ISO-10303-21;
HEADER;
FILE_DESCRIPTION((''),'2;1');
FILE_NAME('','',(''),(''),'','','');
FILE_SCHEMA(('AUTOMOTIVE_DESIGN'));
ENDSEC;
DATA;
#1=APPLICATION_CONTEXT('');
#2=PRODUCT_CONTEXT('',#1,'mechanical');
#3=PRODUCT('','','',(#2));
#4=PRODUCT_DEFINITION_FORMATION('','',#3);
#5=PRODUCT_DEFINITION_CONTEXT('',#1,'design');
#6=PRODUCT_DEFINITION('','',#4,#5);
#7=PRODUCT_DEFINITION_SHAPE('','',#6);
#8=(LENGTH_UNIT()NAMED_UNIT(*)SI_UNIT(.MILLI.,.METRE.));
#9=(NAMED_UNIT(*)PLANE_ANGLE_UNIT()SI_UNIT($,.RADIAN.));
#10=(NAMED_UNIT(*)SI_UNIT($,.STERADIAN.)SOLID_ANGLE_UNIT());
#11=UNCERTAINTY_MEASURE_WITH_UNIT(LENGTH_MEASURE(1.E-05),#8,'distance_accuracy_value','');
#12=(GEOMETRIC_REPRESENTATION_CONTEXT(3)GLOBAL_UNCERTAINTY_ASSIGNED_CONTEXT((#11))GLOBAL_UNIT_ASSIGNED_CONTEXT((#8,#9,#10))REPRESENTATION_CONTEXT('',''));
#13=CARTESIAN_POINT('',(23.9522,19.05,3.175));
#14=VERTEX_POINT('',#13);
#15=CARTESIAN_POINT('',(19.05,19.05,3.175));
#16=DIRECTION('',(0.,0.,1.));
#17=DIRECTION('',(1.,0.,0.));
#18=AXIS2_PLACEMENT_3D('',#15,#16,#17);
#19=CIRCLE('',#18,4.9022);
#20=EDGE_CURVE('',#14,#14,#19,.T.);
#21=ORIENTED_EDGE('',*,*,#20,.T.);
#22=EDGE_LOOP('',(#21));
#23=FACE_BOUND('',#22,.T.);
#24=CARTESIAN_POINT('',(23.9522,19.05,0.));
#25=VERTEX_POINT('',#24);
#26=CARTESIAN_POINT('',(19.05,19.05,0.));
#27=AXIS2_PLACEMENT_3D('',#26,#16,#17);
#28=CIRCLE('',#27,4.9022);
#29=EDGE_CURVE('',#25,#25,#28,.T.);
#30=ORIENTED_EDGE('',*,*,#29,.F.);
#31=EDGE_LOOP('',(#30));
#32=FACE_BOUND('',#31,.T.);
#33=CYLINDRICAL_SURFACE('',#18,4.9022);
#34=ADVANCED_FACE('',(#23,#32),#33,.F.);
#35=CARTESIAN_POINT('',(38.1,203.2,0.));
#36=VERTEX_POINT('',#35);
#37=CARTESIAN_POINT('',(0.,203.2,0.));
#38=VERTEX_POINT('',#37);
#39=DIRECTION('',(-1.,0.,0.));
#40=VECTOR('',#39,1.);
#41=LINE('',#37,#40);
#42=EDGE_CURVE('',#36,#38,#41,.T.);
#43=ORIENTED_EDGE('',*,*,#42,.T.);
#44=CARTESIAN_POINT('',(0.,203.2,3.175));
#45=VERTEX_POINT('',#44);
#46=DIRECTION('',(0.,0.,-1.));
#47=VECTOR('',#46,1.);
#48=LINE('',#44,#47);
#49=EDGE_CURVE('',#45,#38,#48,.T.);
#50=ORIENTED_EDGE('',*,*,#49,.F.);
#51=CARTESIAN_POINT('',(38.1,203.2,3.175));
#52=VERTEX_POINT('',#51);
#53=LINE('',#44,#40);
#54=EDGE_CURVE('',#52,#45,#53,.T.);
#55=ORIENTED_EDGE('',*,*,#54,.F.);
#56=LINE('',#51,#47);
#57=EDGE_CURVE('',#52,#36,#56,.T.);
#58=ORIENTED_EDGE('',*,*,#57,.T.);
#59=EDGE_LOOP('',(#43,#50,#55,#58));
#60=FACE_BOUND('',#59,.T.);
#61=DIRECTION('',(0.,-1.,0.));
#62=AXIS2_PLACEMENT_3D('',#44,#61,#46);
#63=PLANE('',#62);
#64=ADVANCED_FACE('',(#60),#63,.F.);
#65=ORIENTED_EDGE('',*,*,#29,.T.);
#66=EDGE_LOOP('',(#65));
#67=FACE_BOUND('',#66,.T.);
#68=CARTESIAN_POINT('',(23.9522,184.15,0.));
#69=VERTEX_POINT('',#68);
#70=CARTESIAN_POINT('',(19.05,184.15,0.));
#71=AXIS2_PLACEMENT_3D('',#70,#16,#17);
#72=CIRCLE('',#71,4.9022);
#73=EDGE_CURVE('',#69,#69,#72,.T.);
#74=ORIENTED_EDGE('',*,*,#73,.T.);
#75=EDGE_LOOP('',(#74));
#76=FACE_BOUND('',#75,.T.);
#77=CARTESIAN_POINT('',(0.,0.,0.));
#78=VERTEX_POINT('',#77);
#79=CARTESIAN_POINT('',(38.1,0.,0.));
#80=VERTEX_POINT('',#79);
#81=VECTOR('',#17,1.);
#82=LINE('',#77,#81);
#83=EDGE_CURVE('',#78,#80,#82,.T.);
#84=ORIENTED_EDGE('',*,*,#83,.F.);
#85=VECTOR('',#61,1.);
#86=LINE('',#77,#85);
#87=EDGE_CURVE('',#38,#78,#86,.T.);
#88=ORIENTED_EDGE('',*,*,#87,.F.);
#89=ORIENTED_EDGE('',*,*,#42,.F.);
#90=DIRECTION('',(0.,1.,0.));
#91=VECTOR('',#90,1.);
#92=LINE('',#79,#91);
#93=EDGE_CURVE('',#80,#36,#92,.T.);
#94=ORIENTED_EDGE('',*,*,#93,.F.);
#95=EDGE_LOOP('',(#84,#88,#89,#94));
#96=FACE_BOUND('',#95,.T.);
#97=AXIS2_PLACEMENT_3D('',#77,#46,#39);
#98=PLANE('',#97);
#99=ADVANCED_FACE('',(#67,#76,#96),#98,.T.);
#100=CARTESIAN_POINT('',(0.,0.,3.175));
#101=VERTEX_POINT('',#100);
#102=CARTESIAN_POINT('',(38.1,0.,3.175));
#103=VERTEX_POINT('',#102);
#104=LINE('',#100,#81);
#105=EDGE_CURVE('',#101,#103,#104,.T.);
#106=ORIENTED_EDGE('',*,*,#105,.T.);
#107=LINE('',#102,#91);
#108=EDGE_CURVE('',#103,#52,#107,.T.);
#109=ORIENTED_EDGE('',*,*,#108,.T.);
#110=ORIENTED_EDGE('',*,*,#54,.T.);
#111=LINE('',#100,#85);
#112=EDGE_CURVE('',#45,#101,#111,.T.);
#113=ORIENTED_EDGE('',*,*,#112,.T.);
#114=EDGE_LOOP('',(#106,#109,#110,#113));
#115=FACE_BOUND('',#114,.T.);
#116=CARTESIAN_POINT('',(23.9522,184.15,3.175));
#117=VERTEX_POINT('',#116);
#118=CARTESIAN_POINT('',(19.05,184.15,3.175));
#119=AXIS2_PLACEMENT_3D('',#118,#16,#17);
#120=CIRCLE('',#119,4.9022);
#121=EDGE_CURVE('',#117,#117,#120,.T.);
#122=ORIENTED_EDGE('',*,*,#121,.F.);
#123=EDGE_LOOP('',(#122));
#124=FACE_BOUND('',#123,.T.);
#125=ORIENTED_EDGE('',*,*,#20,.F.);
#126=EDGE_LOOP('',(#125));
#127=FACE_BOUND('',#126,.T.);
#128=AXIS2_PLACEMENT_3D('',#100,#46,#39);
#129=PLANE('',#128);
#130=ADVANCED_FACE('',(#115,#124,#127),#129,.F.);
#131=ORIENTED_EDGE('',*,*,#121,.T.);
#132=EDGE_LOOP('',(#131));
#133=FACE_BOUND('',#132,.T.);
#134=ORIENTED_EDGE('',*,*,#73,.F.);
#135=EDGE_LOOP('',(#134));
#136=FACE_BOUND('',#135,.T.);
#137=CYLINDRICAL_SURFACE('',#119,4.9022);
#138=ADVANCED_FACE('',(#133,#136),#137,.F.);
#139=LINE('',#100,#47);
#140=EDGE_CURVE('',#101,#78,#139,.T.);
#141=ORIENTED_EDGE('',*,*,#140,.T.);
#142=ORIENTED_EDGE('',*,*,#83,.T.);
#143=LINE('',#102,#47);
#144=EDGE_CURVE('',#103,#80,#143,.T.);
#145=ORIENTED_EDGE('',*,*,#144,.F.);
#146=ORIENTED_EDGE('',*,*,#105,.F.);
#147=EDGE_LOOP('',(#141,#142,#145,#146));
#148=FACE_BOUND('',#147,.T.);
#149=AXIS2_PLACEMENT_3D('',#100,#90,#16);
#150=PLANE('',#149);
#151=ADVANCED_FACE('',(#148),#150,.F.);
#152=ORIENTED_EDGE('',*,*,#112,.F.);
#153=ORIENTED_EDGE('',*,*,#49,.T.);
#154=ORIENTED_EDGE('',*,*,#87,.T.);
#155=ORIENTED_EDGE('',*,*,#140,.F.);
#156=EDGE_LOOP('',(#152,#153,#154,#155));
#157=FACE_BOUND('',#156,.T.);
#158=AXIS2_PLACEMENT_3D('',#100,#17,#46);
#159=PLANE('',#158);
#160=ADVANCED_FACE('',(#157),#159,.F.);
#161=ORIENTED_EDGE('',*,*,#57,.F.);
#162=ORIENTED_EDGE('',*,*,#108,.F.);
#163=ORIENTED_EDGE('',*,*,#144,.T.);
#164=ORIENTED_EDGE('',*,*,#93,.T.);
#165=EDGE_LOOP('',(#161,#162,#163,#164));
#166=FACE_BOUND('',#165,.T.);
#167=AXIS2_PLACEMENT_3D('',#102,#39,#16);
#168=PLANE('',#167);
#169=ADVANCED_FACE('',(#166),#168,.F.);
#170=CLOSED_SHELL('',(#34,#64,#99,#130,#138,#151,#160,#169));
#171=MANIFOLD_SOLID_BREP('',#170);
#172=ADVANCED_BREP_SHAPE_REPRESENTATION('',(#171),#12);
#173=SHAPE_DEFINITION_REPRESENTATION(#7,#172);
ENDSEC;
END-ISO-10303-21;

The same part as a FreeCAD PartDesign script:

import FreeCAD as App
import Part
import Sketcher

V = App.Vector
Q = App.Units.Quantity

doc = App.newDocument("Part")
body = doc.addObject("PartDesign::Body", "Body")

# Sketch on XY plane
sketch1 = body.newObject("Sketcher::SketchObject", "Sketch")
sketch1.AttachmentSupport = (doc.getObject("XY_Plane"), [""])
sketch1.MapMode = "FlatFace"
sketch1.addGeometry([
    Part.LineSegment(V(0, 203, 0), V(0, 0, 0)),
    Part.LineSegment(V(0, 0, 0), V(38, 0, 0)),
    Part.LineSegment(V(38, 0, 0), V(38, 203, 0)),
    Part.LineSegment(V(38, 203, 0), V(0, 203, 0)),
], False)
sketch1.addConstraint([
    Sketcher.Constraint("Coincident", 0, 2, 1, 1),
    Sketcher.Constraint("Coincident", 1, 2, 2, 1),
    Sketcher.Constraint("Coincident", 2, 2, 3, 1),
    Sketcher.Constraint("Coincident", 3, 2, 0, 1),
    Sketcher.Constraint("Vertical", 0),
    Sketcher.Constraint("Horizontal", 1),
    Sketcher.Constraint("Vertical", 2),
    Sketcher.Constraint("Horizontal", 3),
    Sketcher.Constraint("Coincident", 0, 2, -1, 1),
    Sketcher.Constraint("DistanceY", 0, 2, 0, 1, Q("8 in")),
    Sketcher.Constraint("DistanceX", 1, 1, 1, 2, Q("1.5 in")),
])
pad1 = body.newObject("PartDesign::Pad", "Pad")
pad1.Profile = sketch1
pad1.Length = Q("0.125 in")

# Sketch on XY plane
sketch2 = body.newObject("Sketcher::SketchObject", "Sketch001")
sketch2.AttachmentSupport = (doc.getObject("XY_Plane"), [""])
sketch2.MapMode = "FlatFace"
sketch2.AttachmentOffset = App.Placement(V(0, 0, 0.125 * 25.4), App.Rotation())
sketch2.addGeometry([
    Part.Circle(V(19.1, 184.2, 0), V(0, 0, 1), 4.9),
    Part.Circle(V(19.1, 19.1, 0), V(0, 0, 1), 4.9),
], False)
sketch2.addConstraint([
    Sketcher.Constraint("Equal", 0, 1),
    Sketcher.Constraint("Vertical", 0, 3, 1, 3),
    Sketcher.Constraint("Diameter", 0, Q("0.386 in")),
    Sketcher.Constraint("DistanceY", 1, 3, 0, 3, Q("6.5 in")),
    Sketcher.Constraint("DistanceX", -1, 1, 0, 3, Q("0.75 in")),
    Sketcher.Constraint("DistanceY", -1, 1, 0, 3, Q("7.25 in")),
])
doc.recompute()
hole = body.newObject("PartDesign::Hole", "Hole")
hole.Profile = sketch2
hole.ThreadType = "None"
hole.Diameter = Q("0.386 in")
hole.DepthType = "ThroughAll"

doc.recompute()
